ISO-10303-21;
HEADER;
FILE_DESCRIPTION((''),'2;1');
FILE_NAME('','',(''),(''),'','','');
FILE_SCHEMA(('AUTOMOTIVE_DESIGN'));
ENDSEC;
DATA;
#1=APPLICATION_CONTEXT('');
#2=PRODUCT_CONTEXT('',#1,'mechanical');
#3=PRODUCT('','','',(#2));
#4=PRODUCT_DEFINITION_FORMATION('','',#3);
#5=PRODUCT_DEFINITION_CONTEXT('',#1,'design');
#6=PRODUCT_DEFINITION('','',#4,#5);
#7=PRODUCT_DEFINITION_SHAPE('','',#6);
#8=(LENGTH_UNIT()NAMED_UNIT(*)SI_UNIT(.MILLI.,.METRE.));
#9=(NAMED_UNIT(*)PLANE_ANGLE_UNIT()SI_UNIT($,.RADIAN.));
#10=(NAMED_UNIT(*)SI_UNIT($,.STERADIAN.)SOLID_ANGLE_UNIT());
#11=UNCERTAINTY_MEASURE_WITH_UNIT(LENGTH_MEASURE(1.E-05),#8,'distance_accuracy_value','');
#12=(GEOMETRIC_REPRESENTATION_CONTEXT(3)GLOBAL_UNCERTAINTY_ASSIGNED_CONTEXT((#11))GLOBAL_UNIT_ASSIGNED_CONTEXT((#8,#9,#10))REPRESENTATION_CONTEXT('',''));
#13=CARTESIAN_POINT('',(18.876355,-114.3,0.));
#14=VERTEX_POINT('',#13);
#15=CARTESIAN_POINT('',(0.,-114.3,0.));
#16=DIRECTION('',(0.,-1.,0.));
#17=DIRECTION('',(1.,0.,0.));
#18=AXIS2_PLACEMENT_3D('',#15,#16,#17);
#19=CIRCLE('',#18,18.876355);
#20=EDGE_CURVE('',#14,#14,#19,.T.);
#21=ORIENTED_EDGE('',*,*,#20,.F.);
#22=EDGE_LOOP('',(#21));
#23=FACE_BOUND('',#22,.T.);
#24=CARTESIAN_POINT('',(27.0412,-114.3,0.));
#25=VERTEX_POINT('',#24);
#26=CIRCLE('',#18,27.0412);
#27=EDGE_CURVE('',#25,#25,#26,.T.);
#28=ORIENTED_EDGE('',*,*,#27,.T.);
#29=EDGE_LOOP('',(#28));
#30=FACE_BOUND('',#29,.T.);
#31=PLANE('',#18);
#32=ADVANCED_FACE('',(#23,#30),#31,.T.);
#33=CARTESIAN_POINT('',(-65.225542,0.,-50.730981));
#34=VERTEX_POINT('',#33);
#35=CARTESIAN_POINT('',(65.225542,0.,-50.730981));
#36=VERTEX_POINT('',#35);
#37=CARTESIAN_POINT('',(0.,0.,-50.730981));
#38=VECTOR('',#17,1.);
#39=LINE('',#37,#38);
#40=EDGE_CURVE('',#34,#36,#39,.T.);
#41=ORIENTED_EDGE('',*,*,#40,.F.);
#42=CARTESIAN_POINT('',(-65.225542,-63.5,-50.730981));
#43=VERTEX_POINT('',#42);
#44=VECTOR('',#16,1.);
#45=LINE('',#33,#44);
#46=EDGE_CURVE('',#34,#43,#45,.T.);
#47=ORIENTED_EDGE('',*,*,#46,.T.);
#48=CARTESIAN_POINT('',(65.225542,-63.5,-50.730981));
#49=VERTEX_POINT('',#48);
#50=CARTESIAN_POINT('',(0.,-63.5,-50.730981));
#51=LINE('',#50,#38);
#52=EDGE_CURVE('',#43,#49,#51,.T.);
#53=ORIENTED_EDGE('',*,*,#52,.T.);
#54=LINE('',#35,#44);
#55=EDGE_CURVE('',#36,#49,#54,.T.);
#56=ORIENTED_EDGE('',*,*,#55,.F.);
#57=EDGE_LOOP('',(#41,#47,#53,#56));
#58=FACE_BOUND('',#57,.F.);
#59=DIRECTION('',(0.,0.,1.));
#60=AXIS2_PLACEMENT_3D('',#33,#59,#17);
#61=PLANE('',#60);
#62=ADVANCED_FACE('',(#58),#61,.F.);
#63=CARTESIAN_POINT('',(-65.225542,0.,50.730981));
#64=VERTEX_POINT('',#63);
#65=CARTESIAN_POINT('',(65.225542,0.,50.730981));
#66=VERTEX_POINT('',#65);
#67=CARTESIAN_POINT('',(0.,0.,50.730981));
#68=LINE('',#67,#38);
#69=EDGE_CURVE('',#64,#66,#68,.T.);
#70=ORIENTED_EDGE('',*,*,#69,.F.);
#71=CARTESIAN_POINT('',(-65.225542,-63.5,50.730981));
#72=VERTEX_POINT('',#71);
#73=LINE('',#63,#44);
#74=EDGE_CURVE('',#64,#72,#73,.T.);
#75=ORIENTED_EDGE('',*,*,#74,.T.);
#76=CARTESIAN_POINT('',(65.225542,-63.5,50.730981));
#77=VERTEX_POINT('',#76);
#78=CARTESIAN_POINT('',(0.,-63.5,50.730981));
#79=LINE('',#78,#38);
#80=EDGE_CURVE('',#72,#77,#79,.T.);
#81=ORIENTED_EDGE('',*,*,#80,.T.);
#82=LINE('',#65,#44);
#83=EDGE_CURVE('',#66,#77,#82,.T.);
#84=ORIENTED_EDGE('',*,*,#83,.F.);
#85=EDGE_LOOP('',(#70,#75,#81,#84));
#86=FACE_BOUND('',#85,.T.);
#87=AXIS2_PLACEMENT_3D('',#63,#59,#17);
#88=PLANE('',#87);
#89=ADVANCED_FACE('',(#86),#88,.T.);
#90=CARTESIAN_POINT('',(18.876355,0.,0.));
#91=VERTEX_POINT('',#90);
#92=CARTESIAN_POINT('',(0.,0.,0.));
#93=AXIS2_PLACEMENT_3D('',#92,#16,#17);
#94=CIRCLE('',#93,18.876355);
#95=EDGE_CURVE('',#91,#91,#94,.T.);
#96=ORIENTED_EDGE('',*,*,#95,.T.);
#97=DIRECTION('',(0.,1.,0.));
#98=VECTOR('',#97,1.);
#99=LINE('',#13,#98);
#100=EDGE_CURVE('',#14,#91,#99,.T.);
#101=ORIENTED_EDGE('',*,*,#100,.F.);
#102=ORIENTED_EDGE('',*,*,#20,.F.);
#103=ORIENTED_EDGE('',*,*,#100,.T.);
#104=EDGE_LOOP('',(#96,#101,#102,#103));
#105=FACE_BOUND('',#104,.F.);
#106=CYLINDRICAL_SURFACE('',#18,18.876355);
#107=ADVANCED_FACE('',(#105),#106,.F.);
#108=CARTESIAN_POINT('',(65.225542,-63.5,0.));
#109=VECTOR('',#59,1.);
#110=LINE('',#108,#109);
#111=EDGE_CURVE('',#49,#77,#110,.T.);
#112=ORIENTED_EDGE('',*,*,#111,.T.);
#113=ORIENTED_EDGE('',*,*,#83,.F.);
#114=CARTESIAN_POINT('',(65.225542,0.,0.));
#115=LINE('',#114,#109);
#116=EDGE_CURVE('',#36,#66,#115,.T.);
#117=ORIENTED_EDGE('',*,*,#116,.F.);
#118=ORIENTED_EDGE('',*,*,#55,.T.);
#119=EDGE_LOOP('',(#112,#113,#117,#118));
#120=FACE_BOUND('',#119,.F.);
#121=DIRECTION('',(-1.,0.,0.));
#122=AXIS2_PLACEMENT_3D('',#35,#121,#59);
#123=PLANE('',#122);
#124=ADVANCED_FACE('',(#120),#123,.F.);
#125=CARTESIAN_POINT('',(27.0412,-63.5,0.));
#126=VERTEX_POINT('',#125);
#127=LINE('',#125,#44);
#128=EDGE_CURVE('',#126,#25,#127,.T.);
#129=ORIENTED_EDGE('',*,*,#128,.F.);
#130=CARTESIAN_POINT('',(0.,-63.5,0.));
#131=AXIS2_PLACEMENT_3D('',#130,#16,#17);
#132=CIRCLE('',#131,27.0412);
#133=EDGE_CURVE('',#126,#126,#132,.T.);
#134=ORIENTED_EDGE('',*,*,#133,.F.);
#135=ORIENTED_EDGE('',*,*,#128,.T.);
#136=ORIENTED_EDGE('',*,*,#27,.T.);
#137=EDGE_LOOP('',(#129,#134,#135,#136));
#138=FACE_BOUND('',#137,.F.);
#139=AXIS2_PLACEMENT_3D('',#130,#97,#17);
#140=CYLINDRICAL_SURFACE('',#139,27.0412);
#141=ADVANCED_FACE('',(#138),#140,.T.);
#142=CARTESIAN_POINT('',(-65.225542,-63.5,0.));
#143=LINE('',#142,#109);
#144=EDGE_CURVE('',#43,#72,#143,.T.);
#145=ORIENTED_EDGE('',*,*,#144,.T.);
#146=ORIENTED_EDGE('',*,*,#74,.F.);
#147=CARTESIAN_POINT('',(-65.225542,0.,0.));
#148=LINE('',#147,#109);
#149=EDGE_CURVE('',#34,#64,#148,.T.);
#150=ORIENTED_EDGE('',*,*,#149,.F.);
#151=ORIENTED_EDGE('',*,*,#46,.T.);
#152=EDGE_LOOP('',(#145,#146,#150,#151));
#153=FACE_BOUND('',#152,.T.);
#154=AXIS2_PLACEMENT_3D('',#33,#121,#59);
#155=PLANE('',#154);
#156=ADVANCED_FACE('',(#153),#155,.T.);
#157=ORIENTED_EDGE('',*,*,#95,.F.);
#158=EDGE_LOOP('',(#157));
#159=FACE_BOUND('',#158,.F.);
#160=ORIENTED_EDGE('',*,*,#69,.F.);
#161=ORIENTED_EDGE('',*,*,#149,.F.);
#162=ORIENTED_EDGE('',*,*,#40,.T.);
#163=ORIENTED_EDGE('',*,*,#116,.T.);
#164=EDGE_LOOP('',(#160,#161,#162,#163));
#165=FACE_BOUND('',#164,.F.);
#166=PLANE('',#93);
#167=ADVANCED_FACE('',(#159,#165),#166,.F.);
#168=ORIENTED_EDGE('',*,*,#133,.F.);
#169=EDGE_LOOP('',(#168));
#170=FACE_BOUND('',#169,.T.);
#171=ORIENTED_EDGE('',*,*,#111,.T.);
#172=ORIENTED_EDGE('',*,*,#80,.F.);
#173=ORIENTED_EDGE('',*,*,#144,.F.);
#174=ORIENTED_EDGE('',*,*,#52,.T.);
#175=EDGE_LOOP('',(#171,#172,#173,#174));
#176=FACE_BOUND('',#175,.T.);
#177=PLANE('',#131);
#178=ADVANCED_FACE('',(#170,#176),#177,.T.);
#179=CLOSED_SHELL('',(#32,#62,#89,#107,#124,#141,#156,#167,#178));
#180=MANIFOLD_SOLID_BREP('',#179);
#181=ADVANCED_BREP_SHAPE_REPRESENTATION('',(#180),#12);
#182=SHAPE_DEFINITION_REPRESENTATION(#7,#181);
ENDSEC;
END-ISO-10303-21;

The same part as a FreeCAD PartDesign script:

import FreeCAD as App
import Part
import Sketcher
Q = App.Units.Quantity

doc = App.newDocument("Part")
body = doc.addObject("PartDesign::Body", "Body")

# Sketch on XZ plane
sketch1 = body.newObject("Sketcher::SketchObject", "Sketch")
sketch1.AttachmentSupport = (doc.getObject("XZ_Plane"), [""])
sketch1.MapMode = "FlatFace"
sketch1.addGeometry([
    Part.LineSegment(App.Vector(-65.225542, 50.730981, 0), App.Vector(-65.225542, -50.730981, 0)),
    Part.LineSegment(App.Vector(-65.225542, -50.730981, 0), App.Vector(65.225542, -50.730981, 0)),
    Part.LineSegment(App.Vector(65.225542, -50.730981, 0), App.Vector(65.225542, 50.730981, 0)),
    Part.LineSegment(App.Vector(65.225542, 50.730981, 0), App.Vector(-65.225542, 50.730981, 0)),
], False)
sketch1.addConstraint([
    Sketcher.Constraint("Coincident", 0, 2, 1, 1),
    Sketcher.Constraint("Coincident", 1, 2, 2, 1),
    Sketcher.Constraint("Coincident", 2, 2, 3, 1),
    Sketcher.Constraint("Coincident", 3, 2, 0, 1),
    Sketcher.Constraint("Vertical", 0),
    Sketcher.Constraint("Horizontal", 1),
    Sketcher.Constraint("Vertical", 2),
    Sketcher.Constraint("Horizontal", 3),
    Sketcher.Constraint("Symmetric", 0, 2, 2, 2, -1, 1),
    Sketcher.Constraint("DistanceY", 0, 2, 0, 1, 101.461962),
    Sketcher.Constraint("DistanceX", 1, 1, 1, 2, 130.451084),
])
pad1 = body.newObject("PartDesign::Pad", "Pad")
pad1.Profile = sketch1
pad1.Length = Q("2.5 in")

# Sketch on XZ plane
sketch2 = body.newObject("Sketcher::SketchObject", "Sketch001")
sketch2.AttachmentSupport = (doc.getObject("XZ_Plane"), [""])
sketch2.MapMode = "FlatFace"
sketch2.AttachmentOffset = App.Placement(App.Vector(0, 0, 2.5 * 25.4), App.Rotation())
sketch2.addGeometry(Part.Circle(App.Vector(0, 0, 0), App.Vector(0, 0, 1), 27.0412), False)
sketch2.addConstraint([
    Sketcher.Constraint("Coincident", 0, 3, -1, 1),
    Sketcher.Constraint("Diameter", 0, 54.0824),
])
pad2 = body.newObject("PartDesign::Pad", "Pad001")
pad2.Profile = sketch2
pad2.Length = Q("2 in")

# Sketch on XZ plane
sketch3 = body.newObject("Sketcher::SketchObject", "Sketch002")
sketch3.AttachmentSupport = (doc.getObject("XZ_Plane"), [""])
sketch3.MapMode = "FlatFace"
sketch3.AttachmentOffset = App.Placement(App.Vector(0, 0, 4.5 * 25.4), App.Rotation())
sketch3.addGeometry(Part.Circle(App.Vector(0, 0, 0), App.Vector(0, 0, 1), 18.876355), False)
sketch3.addConstraint([
    Sketcher.Constraint("Coincident", 0, 3, -1, 1),
    Sketcher.Constraint("Diameter", 0, 37.75271),
])
pocket1 = body.newObject("PartDesign::Pocket", "Pocket")
pocket1.Profile = sketch3
pocket1.Length = Q("7.07 in")

doc.recompute()
